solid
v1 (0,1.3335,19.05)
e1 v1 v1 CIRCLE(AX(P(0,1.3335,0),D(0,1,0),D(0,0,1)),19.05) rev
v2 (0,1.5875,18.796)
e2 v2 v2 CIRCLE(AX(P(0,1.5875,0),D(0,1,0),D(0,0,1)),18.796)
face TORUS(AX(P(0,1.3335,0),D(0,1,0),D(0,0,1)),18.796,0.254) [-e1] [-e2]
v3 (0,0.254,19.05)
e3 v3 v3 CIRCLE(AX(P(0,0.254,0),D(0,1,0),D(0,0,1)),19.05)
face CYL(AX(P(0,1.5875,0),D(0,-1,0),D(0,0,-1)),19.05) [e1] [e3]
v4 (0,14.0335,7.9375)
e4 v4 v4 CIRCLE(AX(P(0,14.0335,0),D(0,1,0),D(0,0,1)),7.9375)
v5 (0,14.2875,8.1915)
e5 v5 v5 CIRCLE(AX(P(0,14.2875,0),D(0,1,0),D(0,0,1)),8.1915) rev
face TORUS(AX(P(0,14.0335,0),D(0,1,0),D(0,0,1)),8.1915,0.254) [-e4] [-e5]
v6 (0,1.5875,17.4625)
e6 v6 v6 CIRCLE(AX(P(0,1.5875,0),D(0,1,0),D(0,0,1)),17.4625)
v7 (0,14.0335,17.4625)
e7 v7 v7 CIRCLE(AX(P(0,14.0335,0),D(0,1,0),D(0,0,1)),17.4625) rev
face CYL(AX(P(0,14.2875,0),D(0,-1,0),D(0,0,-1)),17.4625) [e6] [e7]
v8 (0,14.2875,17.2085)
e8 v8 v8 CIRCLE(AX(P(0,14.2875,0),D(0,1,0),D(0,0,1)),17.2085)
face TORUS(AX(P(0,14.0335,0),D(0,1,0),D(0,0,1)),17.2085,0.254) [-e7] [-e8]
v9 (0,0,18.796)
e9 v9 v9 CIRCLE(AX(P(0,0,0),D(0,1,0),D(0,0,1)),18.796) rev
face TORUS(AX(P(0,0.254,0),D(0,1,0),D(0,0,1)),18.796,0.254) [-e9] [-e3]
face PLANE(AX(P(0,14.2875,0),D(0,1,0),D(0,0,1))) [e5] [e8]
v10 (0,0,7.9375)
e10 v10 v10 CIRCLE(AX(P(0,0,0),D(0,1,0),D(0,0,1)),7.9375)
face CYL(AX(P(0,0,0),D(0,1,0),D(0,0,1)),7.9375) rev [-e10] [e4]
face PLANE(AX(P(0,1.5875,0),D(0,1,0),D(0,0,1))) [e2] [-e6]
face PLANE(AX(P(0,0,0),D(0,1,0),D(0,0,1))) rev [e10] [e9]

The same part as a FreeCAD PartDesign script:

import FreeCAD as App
import Part
import Sketcher
from FreeCAD import Vector
Q = App.Units.Quantity


def edges_at(feature, points):
    """Names of the edges that pass closest to the given points."""
    edges = feature.Shape.Edges
    near = lambda p: min(range(len(edges)), key=lambda i: edges[i].distToShape(Part.Vertex(*p))[0])
    return sorted({f"Edge{near(p) + 1}" for p in points})

doc = App.newDocument("Part")
body = doc.addObject("PartDesign::Body", "Body")

# Sketch on XZ plane
sketch1 = body.newObject("Sketcher::SketchObject", "Sketch")
sketch1.AttachmentSupport = (doc.getObject("XZ_Plane"), [""])
sketch1.MapMode = "FlatFace"
sketch1.addGeometry(Part.Circle(Vector(0, 0, 0), Vector(0, 0, 1), 19), False)
sketch1.addConstraint([
    Sketcher.Constraint("Coincident", 0, 3, -1, 1),
    Sketcher.Constraint("Diameter", 0, Q("1.5 in")),
])
pad1 = body.newObject("PartDesign::Pad", "Pad")
pad1.Profile = sketch1
pad1.Length = Q("0.0625 in")
pad1.Reversed = True

# Sketch on XZ plane
sketch2 = body.newObject("Sketcher::SketchObject", "Sketch001")
sketch2.AttachmentSupport = (doc.getObject("XZ_Plane"), [""])
sketch2.MapMode = "FlatFace"
sketch2.AttachmentOffset = App.Placement(Vector(0, 0, -0.0625 * 25.4), App.Rotation())
sketch2.addGeometry(Part.Circle(Vector(0, 0, 0), Vector(0, 0, 1), 17), False)
sketch2.addConstraint([
    Sketcher.Constraint("Coincident", 0, 3, -1, 1),
    Sketcher.Constraint("Diameter", 0, Q("1.375 in")),
])
pad2 = body.newObject("PartDesign::Pad", "Pad001")
pad2.Profile = sketch2
pad2.Length = Q("0.5 in")
pad2.Reversed = True

# Sketch on XZ plane
sketch3 = body.newObject("Sketcher::SketchObject", "Sketch002")
sketch3.AttachmentSupport = (doc.getObject("XZ_Plane"), [""])
sketch3.MapMode = "FlatFace"
sketch3.AttachmentOffset = App.Placement(Vector(0, 0, -0.5625 * 25.4), App.Rotation())
sketch3.addGeometry(Part.Circle(Vector(0, 0, 0), Vector(0, 0, 1), 8), False)
sketch3.addConstraint([
    Sketcher.Constraint("Coincident", 0, 3, -1, 1),
    Sketcher.Constraint("Diameter", 0, Q("0.625 in")),
])
pocket1 = body.newObject("PartDesign::Pocket", "Pocket")
pocket1.Profile = sketch3
pocket1.Type = "ThroughAll"
pocket1.Reversed = True
doc.recompute()

fillet = body.newObject("PartDesign::Fillet", "Fillet")
fillet.Base = (pocket1, edges_at(pocket1, [
    (-7.938, 14.287, 0),
    (-19.05, 0, 0),
    (-19.05, 1.587, 0),
    (-17.462, 14.287, 0),
]))
fillet.Radius = Q("0.01 in")

doc.recompute()
